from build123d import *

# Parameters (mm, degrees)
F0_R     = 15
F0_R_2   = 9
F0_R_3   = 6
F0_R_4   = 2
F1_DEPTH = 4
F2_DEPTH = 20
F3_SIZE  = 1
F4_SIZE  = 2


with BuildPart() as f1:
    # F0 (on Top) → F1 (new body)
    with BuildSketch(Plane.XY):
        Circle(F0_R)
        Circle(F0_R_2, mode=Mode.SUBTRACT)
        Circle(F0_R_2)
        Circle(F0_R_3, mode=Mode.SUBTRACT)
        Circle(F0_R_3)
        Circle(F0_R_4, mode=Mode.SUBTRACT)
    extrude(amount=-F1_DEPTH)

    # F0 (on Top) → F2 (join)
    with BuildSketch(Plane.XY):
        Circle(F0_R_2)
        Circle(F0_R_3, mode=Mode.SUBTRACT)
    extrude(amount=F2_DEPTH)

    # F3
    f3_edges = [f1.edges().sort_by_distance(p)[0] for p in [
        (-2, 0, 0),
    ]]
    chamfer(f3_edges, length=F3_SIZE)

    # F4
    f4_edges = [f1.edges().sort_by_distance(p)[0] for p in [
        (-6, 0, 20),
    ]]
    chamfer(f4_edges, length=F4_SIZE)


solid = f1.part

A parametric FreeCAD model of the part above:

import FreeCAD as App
import Part
import Sketcher

V = App.Vector
Q = App.Units.Quantity


def edges_at(feature, points):
    """Names of the edges that pass closest to the given points."""
    edges = feature.Shape.Edges
    near = lambda p: min(range(len(edges)), key=lambda i: edges[i].distToShape(Part.Vertex(*p))[0])
    return sorted({f"Edge{near(p) + 1}" for p in points})

doc = App.newDocument("Part")
body = doc.addObject("PartDesign::Body", "Body")

sketch1 = body.newObject("Sketcher::SketchObject", "Sketch")
sketch1.AttachmentSupport = (doc.getObject("XY_Plane"), [""])
sketch1.MapMode = "FlatFace"
sketch1.addGeometry(Part.Circle(V(0, 0, 0), V(0, 0, 1), 15), False)
sketch1.addGeometry(Part.Circle(V(0, 0, 0), V(0, 0, 1), 2), False)
sketch1.addConstraint(Sketcher.Constraint("Coincident", 0, 3, -1, 1))
sketch1.addConstraint(Sketcher.Constraint("Coincident", 1, 3, -1, 1))
sketch1.addConstraint(Sketcher.Constraint("Diameter", 0, Q("30 mm")))
sketch1.addConstraint(Sketcher.Constraint("Diameter", 1, Q("4 mm")))
pad1 = body.newObject("PartDesign::Pad", "Pad")
pad1.Profile = sketch1
pad1.Length = 4
pad1.Reversed = True

sketch2 = body.newObject("Sketcher::SketchObject", "Sketch001")
sketch2.AttachmentSupport = (doc.getObject("XY_Plane"), [""])
sketch2.MapMode = "FlatFace"
sketch2.addGeometry(Part.Circle(V(0, 0, 0), V(0, 0, 1), 9), False)
sketch2.addGeometry(Part.Circle(V(0, 0, 0), V(0, 0, 1), 6), False)
sketch2.addConstraint(Sketcher.Constraint("Coincident", 0, 3, -1, 1))
sketch2.addConstraint(Sketcher.Constraint("Coincident", 1, 3, -1, 1))
sketch2.addConstraint(Sketcher.Constraint("Diameter", 0, Q("18 mm")))
sketch2.addConstraint(Sketcher.Constraint("Diameter", 1, Q("12 mm")))
pad2 = body.newObject("PartDesign::Pad", "Pad001")
pad2.Profile = sketch2
pad2.Length = 20
doc.recompute()

chamfer = body.newObject("PartDesign::Chamfer", "Chamfer")
chamfer.Base = (pad2, edges_at(pad2, [(-2, 0, 0)]))
chamfer.Size = 1
doc.recompute()

chamfer2 = body.newObject("PartDesign::Chamfer", "Chamfer001")
chamfer2.Base = (chamfer, edges_at(chamfer, [(-6, 0, 20)]))
chamfer2.Size = 2

doc.recompute()
